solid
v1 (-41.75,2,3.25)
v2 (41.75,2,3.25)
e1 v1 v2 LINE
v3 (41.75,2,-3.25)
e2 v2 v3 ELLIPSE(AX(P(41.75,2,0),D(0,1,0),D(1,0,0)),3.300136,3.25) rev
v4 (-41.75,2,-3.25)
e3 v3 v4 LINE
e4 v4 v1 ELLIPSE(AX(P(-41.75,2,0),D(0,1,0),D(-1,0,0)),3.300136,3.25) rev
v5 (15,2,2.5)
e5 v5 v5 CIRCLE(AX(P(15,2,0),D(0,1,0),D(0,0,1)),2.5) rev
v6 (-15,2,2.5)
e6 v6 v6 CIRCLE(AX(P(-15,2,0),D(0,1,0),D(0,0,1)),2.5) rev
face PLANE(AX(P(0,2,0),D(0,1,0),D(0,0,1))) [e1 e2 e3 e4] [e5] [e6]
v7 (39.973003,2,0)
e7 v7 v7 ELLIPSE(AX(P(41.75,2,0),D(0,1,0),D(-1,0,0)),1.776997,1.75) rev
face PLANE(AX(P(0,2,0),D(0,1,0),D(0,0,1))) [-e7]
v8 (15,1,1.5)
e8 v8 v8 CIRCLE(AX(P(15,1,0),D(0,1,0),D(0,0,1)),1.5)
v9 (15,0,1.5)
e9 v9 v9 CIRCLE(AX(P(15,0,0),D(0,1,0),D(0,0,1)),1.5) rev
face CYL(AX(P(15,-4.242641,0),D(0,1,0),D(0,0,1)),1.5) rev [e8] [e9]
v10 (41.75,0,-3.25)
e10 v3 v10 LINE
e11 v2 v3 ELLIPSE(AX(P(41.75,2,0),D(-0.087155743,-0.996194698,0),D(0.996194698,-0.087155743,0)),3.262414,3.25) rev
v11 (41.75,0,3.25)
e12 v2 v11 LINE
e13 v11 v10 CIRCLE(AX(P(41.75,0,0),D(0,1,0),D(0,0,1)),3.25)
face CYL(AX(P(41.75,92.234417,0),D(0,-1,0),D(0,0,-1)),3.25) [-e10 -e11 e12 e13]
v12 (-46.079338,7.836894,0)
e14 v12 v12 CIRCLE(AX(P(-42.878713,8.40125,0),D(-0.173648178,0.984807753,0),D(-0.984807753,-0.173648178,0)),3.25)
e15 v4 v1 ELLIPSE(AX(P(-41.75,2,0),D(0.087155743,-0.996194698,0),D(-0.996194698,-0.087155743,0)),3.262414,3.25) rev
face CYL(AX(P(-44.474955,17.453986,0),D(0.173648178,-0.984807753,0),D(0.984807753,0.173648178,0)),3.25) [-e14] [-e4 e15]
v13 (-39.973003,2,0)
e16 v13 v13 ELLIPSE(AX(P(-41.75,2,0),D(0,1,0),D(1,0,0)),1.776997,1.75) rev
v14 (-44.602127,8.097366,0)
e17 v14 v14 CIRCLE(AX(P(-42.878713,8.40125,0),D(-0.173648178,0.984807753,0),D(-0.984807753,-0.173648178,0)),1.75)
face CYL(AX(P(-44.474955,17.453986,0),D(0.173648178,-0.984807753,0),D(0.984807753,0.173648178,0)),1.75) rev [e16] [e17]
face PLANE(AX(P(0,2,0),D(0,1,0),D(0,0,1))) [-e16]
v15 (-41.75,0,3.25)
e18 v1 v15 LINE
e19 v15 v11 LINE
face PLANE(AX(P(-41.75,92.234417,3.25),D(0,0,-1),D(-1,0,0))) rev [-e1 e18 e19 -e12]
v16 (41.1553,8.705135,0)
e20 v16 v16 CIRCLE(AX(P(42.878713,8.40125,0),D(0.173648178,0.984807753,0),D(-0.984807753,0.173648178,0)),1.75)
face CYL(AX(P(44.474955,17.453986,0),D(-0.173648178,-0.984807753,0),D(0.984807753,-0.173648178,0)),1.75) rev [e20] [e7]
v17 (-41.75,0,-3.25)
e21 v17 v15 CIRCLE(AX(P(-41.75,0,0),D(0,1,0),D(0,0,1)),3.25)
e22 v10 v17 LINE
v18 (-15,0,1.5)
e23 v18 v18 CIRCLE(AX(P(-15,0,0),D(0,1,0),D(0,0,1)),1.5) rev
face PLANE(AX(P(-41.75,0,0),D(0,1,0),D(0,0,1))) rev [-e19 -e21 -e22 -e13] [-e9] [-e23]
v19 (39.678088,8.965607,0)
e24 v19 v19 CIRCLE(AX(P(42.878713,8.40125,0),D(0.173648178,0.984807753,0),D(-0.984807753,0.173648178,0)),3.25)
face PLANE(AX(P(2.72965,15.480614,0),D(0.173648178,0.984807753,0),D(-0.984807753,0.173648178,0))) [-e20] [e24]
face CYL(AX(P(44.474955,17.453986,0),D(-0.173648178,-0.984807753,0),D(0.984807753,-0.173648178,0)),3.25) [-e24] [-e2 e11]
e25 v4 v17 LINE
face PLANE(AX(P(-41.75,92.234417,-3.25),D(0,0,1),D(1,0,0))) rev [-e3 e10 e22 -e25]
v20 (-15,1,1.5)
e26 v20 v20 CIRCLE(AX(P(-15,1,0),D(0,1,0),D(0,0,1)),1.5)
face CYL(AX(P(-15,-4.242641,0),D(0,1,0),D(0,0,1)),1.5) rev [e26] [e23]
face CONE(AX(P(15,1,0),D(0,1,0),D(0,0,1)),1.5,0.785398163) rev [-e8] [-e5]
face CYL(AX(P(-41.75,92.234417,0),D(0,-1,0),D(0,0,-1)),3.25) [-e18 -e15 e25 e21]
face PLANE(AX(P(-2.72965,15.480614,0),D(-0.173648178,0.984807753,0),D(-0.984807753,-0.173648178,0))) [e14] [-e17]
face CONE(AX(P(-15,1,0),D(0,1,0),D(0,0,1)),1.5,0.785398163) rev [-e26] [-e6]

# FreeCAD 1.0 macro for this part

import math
import FreeCAD as App
import Part
import Sketcher


def edges_at(feature, points):
    """Names of the edges that pass closest to the given points."""
    edges = feature.Shape.Edges
    near = lambda p: min(range(len(edges)), key=lambda i: edges[i].distToShape(Part.Vertex(*p))[0])
    return sorted({f"Edge{near(p) + 1}" for p in points})

doc = App.newDocument("Part")
params = doc.addObject("Spreadsheet::Sheet", "Params")
for row, (alias, value) in enumerate([
    ("sketch1_radius", "3.25 mm"),
    ("sketch1_width", "83.5 mm"),
    ("pad1_length", "2 mm"),
    ("sketch2_diameter", "6.5 mm"),
    ("sketch2_diameter2", "3.5 mm"),
    ("pad2_length", "7.073063 mm"),
    ("sketch3_diameter", "6.5 mm"),
    ("sketch3_diameter2", "3.5 mm"),
    ("pad3_length", "7.073063 mm"),
    ("sketch4_diameter", "3 mm"),
    ("pocket1_length", "2 mm"),
    ("chamfer_size", "1 mm"),
], start=1):
    params.set(f"A{row}", alias)
    params.set(f"B{row}", "=" + value)
    params.setAlias(f"B{row}", alias)

body = doc.addObject("PartDesign::Body", "Body")

sketch1 = body.newObject("Sketcher::SketchObject", "Sketch")
sketch1.AttachmentSupport = (doc.getObject("XZ_Plane"), [""])
sketch1.MapMode = "FlatFace"
sketch1.addGeometry([
    Part.LineSegment(App.Vector(41.8, -3.2, 0), App.Vector(-41.8, -3.2, 0)),
    Part.ArcOfCircle(Part.Circle(App.Vector(-41.8, 0, 0), App.Vector(0, 0, 1), 3.2), math.radians(90), math.radians(270)),
    Part.LineSegment(App.Vector(-41.8, 3.2, 0), App.Vector(41.8, 3.2, 0)),
    Part.ArcOfCircle(Part.Circle(App.Vector(41.8, 0, 0), App.Vector(0, 0, 1), 3.2), math.radians(-90), math.radians(90)),
], False)
sketch1.addConstraint([
    Sketcher.Constraint("Tangent", 0, 2, 1, 2),
    Sketcher.Constraint("Tangent", 1, 1, 2, 1),
    Sketcher.Constraint("Tangent", 2, 2, 3, 2),
    Sketcher.Constraint("Tangent", 3, 1, 0, 1),
    Sketcher.Constraint("Horizontal", 0),
    Sketcher.Constraint("Horizontal", 2),
    Sketcher.Constraint("Symmetric", 1, 3, 3, 3, -1, 1),
    Sketcher.Constraint("Radius", 1, 3.25),
    Sketcher.Constraint("DistanceX", 0, 2, 0, 1, 83.5),
])
sketch1.setExpression("Constraints[7]", "Params.sketch1_radius")
sketch1.setExpression("Constraints[8]", "Params.sketch1_width")
pad1 = body.newObject("PartDesign::Pad", "Pad")
pad1.Profile = sketch1
pad1.setExpression("Length", "Params.pad1_length")
pad1.Reversed = True

sketch2 = body.newObject("Sketcher::SketchObject", "Sketch001")
sketch2.Placement = App.Placement(App.Vector(-1.501425, 8.515006, 0), App.Rotation(App.Vector(0, 0, -1), App.Vector(-0.984807753, -0.173648178, 0), App.Vector(-0.173648178, 0.984807753, 0), "ZXY"))
sketch2.addGeometry([
    Part.Circle(App.Vector(0, 40.8, 0), App.Vector(0, 0, 1), 3.2),
    Part.Circle(App.Vector(0, 40.8, 0), App.Vector(0, 0, 1), 1.8),
], False)
sketch2.addConstraint([
    Sketcher.Constraint("Coincident", 1, 3, 0, 3),
    Sketcher.Constraint("PointOnObject", 0, 3, -2),
    Sketcher.Constraint("Diameter", 0, 6.5),
    Sketcher.Constraint("Diameter", 1, 3.5),
    Sketcher.Constraint("DistanceY", -1, 1, 0, 3, 40.768427),
])
sketch2.setExpression("Constraints[2]", "Params.sketch2_diameter")
sketch2.setExpression("Constraints[3]", "Params.sketch2_diameter2")
pad2 = body.newObject("PartDesign::Pad", "Pad001")
pad2.Profile = sketch2
pad2.setExpression("Length", "Params.pad2_length")

sketch3 = body.newObject("Sketcher::SketchObject", "Sketch002")
sketch3.Placement = App.Placement(App.Vector(1.501425, 8.515006, 0), App.Rotation(App.Vector(0, 0, -1), App.Vector(-0.984807753, 0.173648178, 0), App.Vector(0.173648178, 0.984807753, 0), "ZXY"))
sketch3.addGeometry([
    Part.Circle(App.Vector(0, -40.8, 0), App.Vector(0, 0, 1), 3.2),
    Part.Circle(App.Vector(0, -40.8, 0), App.Vector(0, 0, 1), 1.8),
], False)
sketch3.addConstraint([
    Sketcher.Constraint("Coincident", 1, 3, 0, 3),
    Sketcher.Constraint("PointOnObject", 0, 3, -2),
    Sketcher.Constraint("Diameter", 0, 6.5),
    Sketcher.Constraint("Diameter", 1, 3.5),
    Sketcher.Constraint("DistanceY", 0, 3, -1, 1, 40.768427),
])
sketch3.setExpression("Constraints[2]", "Params.sketch3_diameter")
sketch3.setExpression("Constraints[3]", "Params.sketch3_diameter2")
pad3 = body.newObject("PartDesign::Pad", "Pad002")
pad3.Profile = sketch3
pad3.setExpression("Length", "Params.pad3_length")

sketch4 = body.newObject("Sketcher::SketchObject", "Sketch003")
sketch4.AttachmentSupport = (doc.getObject("XZ_Plane"), [""])
sketch4.MapMode = "FlatFace"
sketch4.AttachmentOffset = App.Placement(App.Vector(0, 0, -2), App.Rotation())
sketch4.addGeometry([
    Part.Circle(App.Vector(-15, 0, 0), App.Vector(0, 0, 1), 1.5),
    Part.Circle(App.Vector(15, 0, 0), App.Vector(0, 0, 1), 1.5),
], False)
sketch4.addConstraint([
    Sketcher.Constraint("Equal", 0, 1),
    Sketcher.Constraint("Symmetric", 0, 3, 1, 3, -1, 1),
    Sketcher.Constraint("PointOnObject", 0, 3, -1),
    Sketcher.Constraint("Diameter", 0, 3.0),
    Sketcher.Constraint("DistanceX", 0, 3, -1, 1, 15.0),
])
sketch4.setExpression("Constraints[3]", "Params.sketch4_diameter")
pocket1 = body.newObject("PartDesign::Pocket", "Pocket")
pocket1.Profile = sketch4
pocket1.setExpression("Length", "Params.pocket1_length")
pocket1.Reversed = True
doc.recompute()

chamfer = body.newObject("PartDesign::Chamfer", "Chamfer")
chamfer.Base = (pocket1, edges_at(pocket1, [(-15, 2, -1.5), (15, 2, -1.5)]))
chamfer.setExpression("Size", "Params.chamfer_size")

doc.recompute()
